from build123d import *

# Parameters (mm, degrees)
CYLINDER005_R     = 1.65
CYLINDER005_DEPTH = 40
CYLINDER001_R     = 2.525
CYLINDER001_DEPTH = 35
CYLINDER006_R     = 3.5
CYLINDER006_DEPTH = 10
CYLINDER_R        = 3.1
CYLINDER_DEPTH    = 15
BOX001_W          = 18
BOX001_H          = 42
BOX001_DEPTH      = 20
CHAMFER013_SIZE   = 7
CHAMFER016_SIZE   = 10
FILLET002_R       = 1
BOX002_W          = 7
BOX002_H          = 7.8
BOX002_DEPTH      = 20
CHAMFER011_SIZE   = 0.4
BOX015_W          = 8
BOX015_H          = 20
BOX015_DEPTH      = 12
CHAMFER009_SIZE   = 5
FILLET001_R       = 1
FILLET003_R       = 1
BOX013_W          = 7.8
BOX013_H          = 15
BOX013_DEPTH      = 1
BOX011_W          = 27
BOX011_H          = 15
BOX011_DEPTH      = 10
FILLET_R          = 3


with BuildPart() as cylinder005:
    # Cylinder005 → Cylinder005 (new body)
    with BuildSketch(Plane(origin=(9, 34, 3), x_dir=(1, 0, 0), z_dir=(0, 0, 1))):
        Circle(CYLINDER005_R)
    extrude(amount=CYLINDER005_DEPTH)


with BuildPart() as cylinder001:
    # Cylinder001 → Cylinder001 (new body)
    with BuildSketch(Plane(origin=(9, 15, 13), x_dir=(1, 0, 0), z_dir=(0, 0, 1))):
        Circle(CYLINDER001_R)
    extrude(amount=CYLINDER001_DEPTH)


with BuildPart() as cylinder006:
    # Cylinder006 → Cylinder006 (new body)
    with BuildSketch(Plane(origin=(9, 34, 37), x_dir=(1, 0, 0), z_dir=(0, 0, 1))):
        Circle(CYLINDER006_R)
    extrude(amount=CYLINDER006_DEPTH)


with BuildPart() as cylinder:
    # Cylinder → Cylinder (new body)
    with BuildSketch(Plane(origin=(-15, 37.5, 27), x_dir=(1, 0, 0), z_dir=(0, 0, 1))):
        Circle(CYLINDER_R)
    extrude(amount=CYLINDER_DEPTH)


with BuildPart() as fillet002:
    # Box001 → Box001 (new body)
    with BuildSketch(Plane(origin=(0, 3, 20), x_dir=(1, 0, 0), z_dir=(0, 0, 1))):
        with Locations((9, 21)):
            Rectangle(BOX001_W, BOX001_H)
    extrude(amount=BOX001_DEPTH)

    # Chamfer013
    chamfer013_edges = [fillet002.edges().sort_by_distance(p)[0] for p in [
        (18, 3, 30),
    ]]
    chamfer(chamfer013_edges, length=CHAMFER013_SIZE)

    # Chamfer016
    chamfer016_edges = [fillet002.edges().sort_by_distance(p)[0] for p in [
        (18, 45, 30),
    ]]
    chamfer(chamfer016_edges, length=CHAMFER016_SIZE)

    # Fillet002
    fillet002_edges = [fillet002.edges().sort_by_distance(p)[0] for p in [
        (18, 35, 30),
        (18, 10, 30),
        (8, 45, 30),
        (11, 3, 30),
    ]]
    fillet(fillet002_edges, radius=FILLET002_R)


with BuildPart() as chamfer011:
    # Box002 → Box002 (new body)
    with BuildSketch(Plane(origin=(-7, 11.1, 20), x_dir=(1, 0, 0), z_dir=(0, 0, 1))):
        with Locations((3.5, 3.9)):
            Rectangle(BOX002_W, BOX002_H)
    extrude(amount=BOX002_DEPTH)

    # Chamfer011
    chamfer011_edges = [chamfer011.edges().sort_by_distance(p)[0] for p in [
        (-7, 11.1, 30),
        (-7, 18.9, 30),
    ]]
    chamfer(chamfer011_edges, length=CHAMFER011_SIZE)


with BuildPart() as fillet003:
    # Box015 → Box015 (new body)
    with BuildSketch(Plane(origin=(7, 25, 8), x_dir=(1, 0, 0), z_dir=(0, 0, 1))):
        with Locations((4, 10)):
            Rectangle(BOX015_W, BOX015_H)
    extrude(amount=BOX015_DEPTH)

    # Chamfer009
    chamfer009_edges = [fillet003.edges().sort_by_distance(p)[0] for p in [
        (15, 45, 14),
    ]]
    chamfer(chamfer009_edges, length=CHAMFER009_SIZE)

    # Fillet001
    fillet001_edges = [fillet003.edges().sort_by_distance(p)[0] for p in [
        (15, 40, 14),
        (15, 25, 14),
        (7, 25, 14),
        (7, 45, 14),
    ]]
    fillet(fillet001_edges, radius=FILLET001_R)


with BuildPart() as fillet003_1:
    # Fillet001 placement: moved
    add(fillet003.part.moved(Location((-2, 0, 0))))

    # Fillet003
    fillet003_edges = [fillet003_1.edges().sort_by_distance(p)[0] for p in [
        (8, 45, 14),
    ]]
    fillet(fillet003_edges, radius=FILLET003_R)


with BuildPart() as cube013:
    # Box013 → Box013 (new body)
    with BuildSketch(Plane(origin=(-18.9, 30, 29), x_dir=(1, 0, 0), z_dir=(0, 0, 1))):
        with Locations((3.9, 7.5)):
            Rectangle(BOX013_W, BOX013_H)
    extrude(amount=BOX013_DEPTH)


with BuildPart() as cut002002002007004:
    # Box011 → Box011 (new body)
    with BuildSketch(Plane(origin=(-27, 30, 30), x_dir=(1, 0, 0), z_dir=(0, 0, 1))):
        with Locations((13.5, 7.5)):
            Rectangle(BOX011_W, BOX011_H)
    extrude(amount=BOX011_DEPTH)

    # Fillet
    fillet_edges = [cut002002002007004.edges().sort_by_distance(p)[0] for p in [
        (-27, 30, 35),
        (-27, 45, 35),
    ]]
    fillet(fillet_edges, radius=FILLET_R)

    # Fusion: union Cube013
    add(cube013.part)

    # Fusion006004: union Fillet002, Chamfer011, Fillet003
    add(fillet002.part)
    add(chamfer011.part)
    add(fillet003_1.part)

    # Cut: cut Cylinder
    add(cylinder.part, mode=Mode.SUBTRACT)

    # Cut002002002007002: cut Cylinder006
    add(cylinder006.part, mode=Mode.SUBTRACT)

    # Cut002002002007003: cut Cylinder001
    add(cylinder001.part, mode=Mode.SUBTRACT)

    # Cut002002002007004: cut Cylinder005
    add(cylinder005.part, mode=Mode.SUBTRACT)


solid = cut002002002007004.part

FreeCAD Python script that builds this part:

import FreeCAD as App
import Part
import Sketcher
from FreeCAD import Vector


def edges_at(feature, points):
    """Names of the edges that pass closest to the given points."""
    edges = feature.Shape.Edges
    near = lambda p: min(range(len(edges)), key=lambda i: edges[i].distToShape(Part.Vertex(*p))[0])
    return sorted({f"Edge{near(p) + 1}" for p in points})

doc = App.newDocument("Part")
params = doc.addObject("Spreadsheet::Sheet", "Params")
for row, (alias, value) in enumerate([
    ("sketch1_diameter", "3.3 mm"),
    ("pad1_length", "40 mm"),
    ("sketch2_diameter", "5.05 mm"),
    ("pad2_length", "35 mm"),
    ("sketch3_diameter", "7 mm"),
    ("pad3_length", "10 mm"),
    ("sketch4_diameter", "6.2 mm"),
    ("pad4_length", "15 mm"),
    ("sketch5_width", "18 mm"),
    ("sketch5_height", "42 mm"),
    ("pad5_length", "20 mm"),
    ("chamfer_size", "7 mm"),
    ("chamfer2_size", "10 mm"),
    ("fillet_radius", "1 mm"),
    ("sketch6_width", "7 mm"),
    ("sketch6_height", "7.8 mm"),
    ("pad6_length", "20 mm"),
    ("chamfer3_size", "0.4 mm"),
    ("sketch7_width", "8 mm"),
    ("sketch7_height", "20 mm"),
    ("pad7_length", "12 mm"),
    ("chamfer4_size", "5 mm"),
    ("fillet2_radius", "1 mm"),
    ("fillet3_radius", "1 mm"),
    ("sketch8_height", "15 mm"),
    ("sketch8_width", "7.8 mm"),
    ("pad8_length", "1 mm"),
    ("sketch9_width", "27 mm"),
    ("sketch9_height", "15 mm"),
    ("pad9_length", "10 mm"),
    ("fillet4_radius", "3 mm"),
], start=1):
    params.set(f"A{row}", alias)
    params.set(f"B{row}", "=" + value)
    params.setAlias(f"B{row}", alias)

body = doc.addObject("PartDesign::Body", "Body")

sketch1 = body.newObject("Sketcher::SketchObject", "Sketch")
sketch1.AttachmentSupport = (doc.getObject("XY_Plane"), [""])
sketch1.MapMode = "FlatFace"
sketch1.AttachmentOffset = App.Placement(Vector(0, 0, 3), App.Rotation())
sketch1.addGeometry(Part.Circle(Vector(9, 34, 0), Vector(0, 0, 1), 1.65), False)
sketch1.addConstraint([
    Sketcher.Constraint("Diameter", 0, 3.3),
    Sketcher.Constraint("DistanceX", -1, 1, 0, 3, 9.0),
    Sketcher.Constraint("DistanceY", -1, 1, 0, 3, 34.0),
])
sketch1.setExpression("Constraints[0]", "Params.sketch1_diameter")
pad1 = body.newObject("PartDesign::Pad", "Pad")
pad1.Profile = sketch1
pad1.setExpression("Length", "Params.pad1_length")
body2 = doc.addObject("PartDesign::Body", "Body001")

sketch2 = body2.newObject("Sketcher::SketchObject", "Sketch001")
sketch2.AttachmentSupport = (doc.getObject("XY_Plane001"), [""])
sketch2.MapMode = "FlatFace"
sketch2.AttachmentOffset = App.Placement(Vector(0, 0, 13), App.Rotation())
sketch2.addGeometry(Part.Circle(Vector(9, 15, 0), Vector(0, 0, 1), 2.525), False)
sketch2.addConstraint([
    Sketcher.Constraint("Diameter", 0, 5.05),
    Sketcher.Constraint("DistanceX", -1, 1, 0, 3, 9.0),
    Sketcher.Constraint("DistanceY", -1, 1, 0, 3, 15.0),
])
sketch2.setExpression("Constraints[0]", "Params.sketch2_diameter")
pad2 = body2.newObject("PartDesign::Pad", "Pad001")
pad2.Profile = sketch2
pad2.setExpression("Length", "Params.pad2_length")
body3 = doc.addObject("PartDesign::Body", "Body002")

sketch3 = body3.newObject("Sketcher::SketchObject", "Sketch002")
sketch3.AttachmentSupport = (doc.getObject("XY_Plane002"), [""])
sketch3.MapMode = "FlatFace"
sketch3.AttachmentOffset = App.Placement(Vector(0, 0, 37), App.Rotation())
sketch3.addGeometry(Part.Circle(Vector(9, 34, 0), Vector(0, 0, 1), 3.5), False)
sketch3.addConstraint([
    Sketcher.Constraint("Diameter", 0, 7.0),
    Sketcher.Constraint("DistanceX", -1, 1, 0, 3, 9.0),
    Sketcher.Constraint("DistanceY", -1, 1, 0, 3, 34.0),
])
sketch3.setExpression("Constraints[0]", "Params.sketch3_diameter")
pad3 = body3.newObject("PartDesign::Pad", "Pad002")
pad3.Profile = sketch3
pad3.setExpression("Length", "Params.pad3_length")
body4 = doc.addObject("PartDesign::Body", "Body003")

sketch4 = body4.newObject("Sketcher::SketchObject", "Sketch003")
sketch4.AttachmentSupport = (doc.getObject("XY_Plane003"), [""])
sketch4.MapMode = "FlatFace"
sketch4.AttachmentOffset = App.Placement(Vector(0, 0, 27), App.Rotation())
sketch4.addGeometry(Part.Circle(Vector(-15, 37.5, 0), Vector(0, 0, 1), 3.1), False)
sketch4.addConstraint([
    Sketcher.Constraint("Diameter", 0, 6.2),
    Sketcher.Constraint("DistanceX", 0, 3, -1, 1, 15.0),
    Sketcher.Constraint("DistanceY", -1, 1, 0, 3, 37.5),
])
sketch4.setExpression("Constraints[0]", "Params.sketch4_diameter")
pad4 = body4.newObject("PartDesign::Pad", "Pad003")
pad4.Profile = sketch4
pad4.setExpression("Length", "Params.pad4_length")
body5 = doc.addObject("PartDesign::Body", "Body004")

sketch5 = body5.newObject("Sketcher::SketchObject", "Sketch004")
sketch5.AttachmentSupport = (doc.getObject("XY_Plane004"), [""])
sketch5.MapMode = "FlatFace"
sketch5.AttachmentOffset = App.Placement(Vector(0, 0, 20), App.Rotation())
sketch5.addGeometry([
    Part.LineSegment(Vector(0, 45, 0), Vector(0, 3, 0)),
    Part.LineSegment(Vector(0, 3, 0), Vector(18, 3, 0)),
    Part.LineSegment(Vector(18, 3, 0), Vector(18, 45, 0)),
    Part.LineSegment(Vector(18, 45, 0), Vector(0, 45, 0)),
], False)
sketch5.addConstraint([
    Sketcher.Constraint("Coincident", 0, 2, 1, 1),
    Sketcher.Constraint("Coincident", 1, 2, 2, 1),
    Sketcher.Constraint("Coincident", 2, 2, 3, 1),
    Sketcher.Constraint("Coincident", 3, 2, 0, 1),
    Sketcher.Constraint("Vertical", 0),
    Sketcher.Constraint("Horizontal", 1),
    Sketcher.Constraint("Vertical", 2),
    Sketcher.Constraint("Horizontal", 3),
    Sketcher.Constraint("PointOnObject", 0, 2, -2),
    Sketcher.Constraint("DistanceX", 1, 1, 1, 2, 18.0),
    Sketcher.Constraint("DistanceY", 0, 2, 0, 1, 42.0),
    Sketcher.Constraint("DistanceY", -1, 1, 0, 2, 3.0),
])
sketch5.setExpression("Constraints[9]", "Params.sketch5_width")
sketch5.setExpression("Constraints[10]", "Params.sketch5_height")
pad5 = body5.newObject("PartDesign::Pad", "Pad004")
pad5.Profile = sketch5
pad5.setExpression("Length", "Params.pad5_length")
doc.recompute()

chamfer = body5.newObject("PartDesign::Chamfer", "Chamfer")
chamfer.Base = (pad5, edges_at(pad5, [(18, 3, 30)]))
chamfer.setExpression("Size", "Params.chamfer_size")
doc.recompute()

chamfer2 = body5.newObject("PartDesign::Chamfer", "Chamfer001")
chamfer2.Base = (chamfer, edges_at(chamfer, [(18, 45, 30)]))
chamfer2.setExpression("Size", "Params.chamfer2_size")
doc.recompute()

fillet = body5.newObject("PartDesign::Fillet", "Fillet")
fillet.Base = (chamfer2, edges_at(chamfer2, [
    (18, 35, 30),
    (18, 10, 30),
    (8, 45, 30),
    (11, 3, 30),
]))
fillet.setExpression("Radius", "Params.fillet_radius")
body6 = doc.addObject("PartDesign::Body", "Body005")

sketch6 = body6.newObject("Sketcher::SketchObject", "Sketch005")
sketch6.AttachmentSupport = (doc.getObject("XY_Plane005"), [""])
sketch6.MapMode = "FlatFace"
sketch6.AttachmentOffset = App.Placement(Vector(0, 0, 20), App.Rotation())
sketch6.addGeometry([
    Part.LineSegment(Vector(-7, 18.9, 0), Vector(-7, 11.1, 0)),
    Part.LineSegment(Vector(-7, 11.1, 0), Vector(0, 11.1, 0)),
    Part.LineSegment(Vector(0, 11.1, 0), Vector(0, 18.9, 0)),
    Part.LineSegment(Vector(0, 18.9, 0), Vector(-7, 18.9, 0)),
], False)
sketch6.addConstraint([
    Sketcher.Constraint("Coincident", 0, 2, 1, 1),
    Sketcher.Constraint("Coincident", 1, 2, 2, 1),
    Sketcher.Constraint("Coincident", 2, 2, 3, 1),
    Sketcher.Constraint("Coincident", 3, 2, 0, 1),
    Sketcher.Constraint("Vertical", 0),
    Sketcher.Constraint("Horizontal", 1),
    Sketcher.Constraint("Vertical", 2),
    Sketcher.Constraint("Horizontal", 3),
    Sketcher.Constraint("PointOnObject", 1, 2, -2),
    Sketcher.Constraint("DistanceX", 1, 1, 1, 2, 7.0),
    Sketcher.Constraint("DistanceY", 0, 2, 0, 1, 7.8),
    Sketcher.Constraint("DistanceY", -1, 1, 0, 2, 11.1),
])
sketch6.setExpression("Constraints[9]", "Params.sketch6_width")
sketch6.setExpression("Constraints[10]", "Params.sketch6_height")
pad6 = body6.newObject("PartDesign::Pad", "Pad005")
pad6.Profile = sketch6
pad6.setExpression("Length", "Params.pad6_length")
doc.recompute()

chamfer3 = body6.newObject("PartDesign::Chamfer", "Chamfer002")
chamfer3.Base = (pad6, edges_at(pad6, [(-7, 11.1, 30), (-7, 18.9, 30)]))
chamfer3.setExpression("Size", "Params.chamfer3_size")
body7 = doc.addObject("PartDesign::Body", "Body006")

sketch7 = body7.newObject("Sketcher::SketchObject", "Sketch006")
sketch7.AttachmentSupport = (doc.getObject("XY_Plane006"), [""])
sketch7.MapMode = "FlatFace"
sketch7.AttachmentOffset = App.Placement(Vector(0, 0, 8), App.Rotation())
sketch7.addGeometry([
    Part.LineSegment(Vector(7, 45, 0), Vector(7, 25, 0)),
    Part.LineSegment(Vector(7, 25, 0), Vector(15, 25, 0)),
    Part.LineSegment(Vector(15, 25, 0), Vector(15, 45, 0)),
    Part.LineSegment(Vector(15, 45, 0), Vector(7, 45, 0)),
], False)
sketch7.addConstraint([
    Sketcher.Constraint("Coincident", 0, 2, 1, 1),
    Sketcher.Constraint("Coincident", 1, 2, 2, 1),
    Sketcher.Constraint("Coincident", 2, 2, 3, 1),
    Sketcher.Constraint("Coincident", 3, 2, 0, 1),
    Sketcher.Constraint("Vertical", 0),
    Sketcher.Constraint("Horizontal", 1),
    Sketcher.Constraint("Vertical", 2),
    Sketcher.Constraint("Horizontal", 3),
    Sketcher.Constraint("DistanceX", 1, 1, 1, 2, 8.0),
    Sketcher.Constraint("DistanceY", 0, 2, 0, 1, 20.0),
    Sketcher.Constraint("DistanceX", -1, 1, 0, 2, 7.0),
    Sketcher.Constraint("DistanceY", -1, 1, 0, 2, 25.0),
])
sketch7.setExpression("Constraints[8]", "Params.sketch7_width")
sketch7.setExpression("Constraints[9]", "Params.sketch7_height")
pad7 = body7.newObject("PartDesign::Pad", "Pad006")
pad7.Profile = sketch7
pad7.setExpression("Length", "Params.pad7_length")
doc.recompute()

chamfer4 = body7.newObject("PartDesign::Chamfer", "Chamfer003")
chamfer4.Base = (pad7, edges_at(pad7, [(15, 45, 14)]))
chamfer4.setExpression("Size", "Params.chamfer4_size")
doc.recompute()

fillet2 = body7.newObject("PartDesign::Fillet", "Fillet001")
fillet2.Base = (chamfer4, edges_at(chamfer4, [
    (15, 40, 14),
    (15, 25, 14),
    (7, 25, 14),
    (7, 45, 14),
]))
fillet2.setExpression("Radius", "Params.fillet2_radius")
body8 = doc.addObject("PartDesign::Body", "Body007")
doc.recompute()

body7.Placement = App.Placement(Vector(-2, 0, 0), App.Rotation(Vector(0, 0, 1), 0))
boolean = body8.newObject("PartDesign::Boolean", "Boolean")
boolean.Type = "Fuse"
boolean.addObjects([body7])
doc.recompute()

fillet3 = body8.newObject("PartDesign::Fillet", "Fillet002")
fillet3.Base = (boolean, edges_at(boolean, [(8, 45, 14)]))
fillet3.setExpression("Radius", "Params.fillet3_radius")
body9 = doc.addObject("PartDesign::Body", "Body008")

sketch8 = body9.newObject("Sketcher::SketchObject", "Sketch007")
sketch8.AttachmentSupport = (doc.getObject("XY_Plane008"), [""])
sketch8.MapMode = "FlatFace"
sketch8.AttachmentOffset = App.Placement(Vector(0, 0, 29), App.Rotation())
sketch8.addGeometry([
    Part.LineSegment(Vector(-18.9, 45, 0), Vector(-18.9, 30, 0)),
    Part.LineSegment(Vector(-18.9, 30, 0), Vector(-11.1, 30, 0)),
    Part.LineSegment(Vector(-11.1, 30, 0), Vector(-11.1, 45, 0)),
    Part.LineSegment(Vector(-11.1, 45, 0), Vector(-18.9, 45, 0)),
], False)
sketch8.addConstraint([
    Sketcher.Constraint("Coincident", 0, 2, 1, 1),
    Sketcher.Constraint("Coincident", 1, 2, 2, 1),
    Sketcher.Constraint("Coincident", 2, 2, 3, 1),
    Sketcher.Constraint("Coincident", 3, 2, 0, 1),
    Sketcher.Constraint("Vertical", 0),
    Sketcher.Constraint("Horizontal", 1),
    Sketcher.Constraint("Vertical", 2),
    Sketcher.Constraint("Horizontal", 3),
    Sketcher.Constraint("DistanceY", 0, 2, 0, 1, 15.0),
    Sketcher.Constraint("DistanceX", 1, 1, 1, 2, 7.8),
    Sketcher.Constraint("DistanceY", -1, 1, 0, 2, 30.0),
    Sketcher.Constraint("DistanceX", 0, 2, -1, 1, 18.9),
])
sketch8.setExpression("Constraints[8]", "Params.sketch8_height")
sketch8.setExpression("Constraints[9]", "Params.sketch8_width")
pad8 = body9.newObject("PartDesign::Pad", "Pad007")
pad8.Profile = sketch8
pad8.setExpression("Length", "Params.pad8_length")
body10 = doc.addObject("PartDesign::Body", "Body009")

sketch9 = body10.newObject("Sketcher::SketchObject", "Sketch008")
sketch9.AttachmentSupport = (doc.getObject("XY_Plane009"), [""])
sketch9.MapMode = "FlatFace"
sketch9.AttachmentOffset = App.Placement(Vector(0, 0, 30), App.Rotation())
sketch9.addGeometry([
    Part.LineSegment(Vector(-27, 45, 0), Vector(-27, 30, 0)),
    Part.LineSegment(Vector(-27, 30, 0), Vector(0, 30, 0)),
    Part.LineSegment(Vector(0, 30, 0), Vector(0, 45, 0)),
    Part.LineSegment(Vector(0, 45, 0), Vector(-27, 45, 0)),
], False)
sketch9.addConstraint([
    Sketcher.Constraint("Coincident", 0, 2, 1, 1),
    Sketcher.Constraint("Coincident", 1, 2, 2, 1),
    Sketcher.Constraint("Coincident", 2, 2, 3, 1),
    Sketcher.Constraint("Coincident", 3, 2, 0, 1),
    Sketcher.Constraint("Vertical", 0),
    Sketcher.Constraint("Horizontal", 1),
    Sketcher.Constraint("Vertical", 2),
    Sketcher.Constraint("Horizontal", 3),
    Sketcher.Constraint("PointOnObject", 1, 2, -2),
    Sketcher.Constraint("DistanceX", 1, 1, 1, 2, 27.0),
    Sketcher.Constraint("DistanceY", 0, 2, 0, 1, 15.0),
    Sketcher.Constraint("DistanceY", -1, 1, 0, 2, 30.0),
])
sketch9.setExpression("Constraints[9]", "Params.sketch9_width")
sketch9.setExpression("Constraints[10]", "Params.sketch9_height")
pad9 = body10.newObject("PartDesign::Pad", "Pad008")
pad9.Profile = sketch9
pad9.setExpression("Length", "Params.pad9_length")
doc.recompute()

fillet4 = body10.newObject("PartDesign::Fillet", "Fillet003")
fillet4.Base = (pad9, edges_at(pad9, [(-27, 30, 35), (-27, 45, 35)]))
fillet4.setExpression("Radius", "Params.fillet4_radius")
doc.recompute()

boolean2 = body10.newObject("PartDesign::Boolean", "Boolean001")
boolean2.Type = "Fuse"
boolean2.addObjects([body9])
doc.recompute()

boolean3 = body10.newObject("PartDesign::Boolean", "Boolean002")
boolean3.Type = "Fuse"
boolean3.addObjects([body5])
doc.recompute()

boolean4 = body10.newObject("PartDesign::Boolean", "Boolean003")
boolean4.Type = "Fuse"
boolean4.addObjects([body6])
doc.recompute()

boolean5 = body10.newObject("PartDesign::Boolean", "Boolean004")
boolean5.Type = "Fuse"
boolean5.addObjects([body8])
doc.recompute()

boolean6 = body10.newObject("PartDesign::Boolean", "Boolean005")
boolean6.Type = "Cut"
boolean6.addObjects([body4])
doc.recompute()

boolean7 = body10.newObject("PartDesign::Boolean", "Boolean006")
boolean7.Type = "Cut"
boolean7.addObjects([body3])
doc.recompute()

boolean8 = body10.newObject("PartDesign::Boolean", "Boolean007")
boolean8.Type = "Cut"
boolean8.addObjects([body2])
doc.recompute()

boolean9 = body10.newObject("PartDesign::Boolean", "Boolean008")
boolean9.Type = "Cut"
boolean9.addObjects([body])

doc.recompute()
